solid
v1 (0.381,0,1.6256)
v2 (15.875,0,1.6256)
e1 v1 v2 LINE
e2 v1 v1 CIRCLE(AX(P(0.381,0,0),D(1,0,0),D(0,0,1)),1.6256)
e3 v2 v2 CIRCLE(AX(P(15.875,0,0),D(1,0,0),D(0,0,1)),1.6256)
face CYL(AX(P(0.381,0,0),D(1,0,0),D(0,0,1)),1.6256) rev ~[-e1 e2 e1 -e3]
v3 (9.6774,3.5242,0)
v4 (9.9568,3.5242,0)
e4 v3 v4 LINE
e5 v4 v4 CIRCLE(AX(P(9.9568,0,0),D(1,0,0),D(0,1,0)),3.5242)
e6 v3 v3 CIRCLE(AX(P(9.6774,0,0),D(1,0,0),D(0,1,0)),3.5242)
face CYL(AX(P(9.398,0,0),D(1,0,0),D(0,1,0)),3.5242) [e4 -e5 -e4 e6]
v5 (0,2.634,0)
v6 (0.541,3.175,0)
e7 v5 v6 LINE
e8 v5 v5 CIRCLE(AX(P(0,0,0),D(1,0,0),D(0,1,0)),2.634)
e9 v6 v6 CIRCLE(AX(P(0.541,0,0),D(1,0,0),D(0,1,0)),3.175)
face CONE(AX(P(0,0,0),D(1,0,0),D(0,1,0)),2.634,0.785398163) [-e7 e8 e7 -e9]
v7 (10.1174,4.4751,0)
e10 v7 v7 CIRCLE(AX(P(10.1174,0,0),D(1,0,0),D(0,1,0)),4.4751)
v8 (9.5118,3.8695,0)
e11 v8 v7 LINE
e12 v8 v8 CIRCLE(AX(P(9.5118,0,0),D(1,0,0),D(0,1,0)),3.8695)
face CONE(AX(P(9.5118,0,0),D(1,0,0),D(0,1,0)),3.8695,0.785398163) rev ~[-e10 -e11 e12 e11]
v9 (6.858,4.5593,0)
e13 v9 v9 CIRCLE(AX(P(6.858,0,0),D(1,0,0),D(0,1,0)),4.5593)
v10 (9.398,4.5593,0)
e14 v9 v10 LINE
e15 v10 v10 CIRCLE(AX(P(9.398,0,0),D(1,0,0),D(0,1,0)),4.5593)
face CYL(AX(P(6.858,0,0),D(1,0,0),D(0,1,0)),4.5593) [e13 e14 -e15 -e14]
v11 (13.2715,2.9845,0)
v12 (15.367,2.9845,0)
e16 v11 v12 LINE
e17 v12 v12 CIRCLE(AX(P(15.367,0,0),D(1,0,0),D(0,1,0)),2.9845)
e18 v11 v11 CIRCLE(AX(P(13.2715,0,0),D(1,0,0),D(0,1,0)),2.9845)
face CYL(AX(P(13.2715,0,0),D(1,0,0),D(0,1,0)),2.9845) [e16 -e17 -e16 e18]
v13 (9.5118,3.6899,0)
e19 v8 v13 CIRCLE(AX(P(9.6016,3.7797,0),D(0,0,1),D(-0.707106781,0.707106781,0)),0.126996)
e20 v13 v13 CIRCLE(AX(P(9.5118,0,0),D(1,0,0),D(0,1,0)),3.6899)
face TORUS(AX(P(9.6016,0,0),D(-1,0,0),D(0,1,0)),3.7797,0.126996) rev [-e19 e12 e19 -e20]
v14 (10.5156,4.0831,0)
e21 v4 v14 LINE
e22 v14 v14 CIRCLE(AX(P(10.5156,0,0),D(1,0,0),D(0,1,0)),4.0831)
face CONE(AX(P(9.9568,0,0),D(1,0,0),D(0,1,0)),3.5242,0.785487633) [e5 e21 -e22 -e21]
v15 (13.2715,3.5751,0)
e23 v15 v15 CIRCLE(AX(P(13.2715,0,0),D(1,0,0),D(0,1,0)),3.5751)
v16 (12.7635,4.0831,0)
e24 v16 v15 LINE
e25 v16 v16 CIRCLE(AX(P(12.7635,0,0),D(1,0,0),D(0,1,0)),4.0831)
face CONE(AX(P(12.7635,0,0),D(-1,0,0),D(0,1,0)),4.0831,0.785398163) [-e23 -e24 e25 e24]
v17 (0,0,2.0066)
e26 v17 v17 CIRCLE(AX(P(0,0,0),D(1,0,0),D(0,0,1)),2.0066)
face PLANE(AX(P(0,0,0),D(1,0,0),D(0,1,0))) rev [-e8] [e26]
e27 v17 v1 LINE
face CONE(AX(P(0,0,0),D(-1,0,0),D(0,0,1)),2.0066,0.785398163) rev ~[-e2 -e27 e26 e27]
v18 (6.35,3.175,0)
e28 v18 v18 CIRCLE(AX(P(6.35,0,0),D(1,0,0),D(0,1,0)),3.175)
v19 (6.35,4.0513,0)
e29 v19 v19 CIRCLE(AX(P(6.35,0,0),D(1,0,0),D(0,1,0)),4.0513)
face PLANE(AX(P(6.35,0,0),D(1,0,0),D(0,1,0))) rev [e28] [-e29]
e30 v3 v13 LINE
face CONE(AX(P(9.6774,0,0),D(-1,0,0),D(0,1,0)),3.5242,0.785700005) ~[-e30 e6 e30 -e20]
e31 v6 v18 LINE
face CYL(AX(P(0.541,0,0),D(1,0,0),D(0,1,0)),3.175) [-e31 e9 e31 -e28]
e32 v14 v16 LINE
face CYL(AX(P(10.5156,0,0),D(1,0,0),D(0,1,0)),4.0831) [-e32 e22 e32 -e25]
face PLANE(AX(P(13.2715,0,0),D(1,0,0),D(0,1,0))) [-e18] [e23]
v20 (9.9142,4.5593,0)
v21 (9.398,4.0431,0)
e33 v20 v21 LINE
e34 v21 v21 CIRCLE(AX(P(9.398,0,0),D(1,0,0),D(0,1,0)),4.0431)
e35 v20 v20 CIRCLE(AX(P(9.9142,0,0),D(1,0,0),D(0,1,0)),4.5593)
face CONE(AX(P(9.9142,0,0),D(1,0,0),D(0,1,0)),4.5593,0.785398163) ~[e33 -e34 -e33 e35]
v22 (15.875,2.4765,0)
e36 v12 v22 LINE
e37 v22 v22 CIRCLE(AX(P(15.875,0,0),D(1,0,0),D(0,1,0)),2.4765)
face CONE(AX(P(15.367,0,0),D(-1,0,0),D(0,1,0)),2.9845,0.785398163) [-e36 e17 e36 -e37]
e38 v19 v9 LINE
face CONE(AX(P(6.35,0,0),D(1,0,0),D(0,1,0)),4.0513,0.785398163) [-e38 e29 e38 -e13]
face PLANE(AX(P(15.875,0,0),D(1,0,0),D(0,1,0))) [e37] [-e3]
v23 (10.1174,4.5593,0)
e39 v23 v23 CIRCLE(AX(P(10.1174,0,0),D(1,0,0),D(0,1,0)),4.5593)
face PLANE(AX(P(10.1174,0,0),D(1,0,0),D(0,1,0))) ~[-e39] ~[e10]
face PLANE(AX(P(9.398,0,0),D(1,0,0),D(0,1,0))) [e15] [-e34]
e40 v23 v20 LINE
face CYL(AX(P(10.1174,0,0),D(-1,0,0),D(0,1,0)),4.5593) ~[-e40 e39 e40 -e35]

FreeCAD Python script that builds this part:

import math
import FreeCAD as App
import Part
import Sketcher
Q = App.Units.Quantity


def add_polygon(sketch, points):
    """Adds a closed chain of lines whose ends are joined by coincident constraints."""
    first, n = sketch.GeometryCount, len(points)
    for a, b in zip(points, points[1:] + points[:1]):
        sketch.addGeometry(Part.LineSegment(App.Vector(*a, 0), App.Vector(*b, 0)), False)
    for i in range(n):
        sketch.addConstraint(Sketcher.Constraint("Coincident", first + i, 2, first + (i + 1) % n, 1))

doc = App.newDocument("Part")
body = doc.addObject("PartDesign::Body", "Body")

# Sketch on XY plane
sketch1 = body.newObject("Sketcher::SketchObject", "Sketch")
sketch1.AttachmentSupport = (doc.getObject("XY_Plane"), [""])
sketch1.MapMode = "FlatFace"
add_polygon(sketch1, [(0, 0), (6.35, 0), (6.35, 3.175), (0.541, 3.175), (0, 2.634)])  # lines 0-4
sketch1.addConstraint(Sketcher.Constraint("Horizontal", 0))
sketch1.addConstraint(Sketcher.Constraint("Vertical", 1))
sketch1.addConstraint(Sketcher.Constraint("Horizontal", 2))
sketch1.addConstraint(Sketcher.Constraint("Vertical", 4))
sketch1.addConstraint(Sketcher.Constraint("Coincident", 4, 2, -1, 1))
sketch1.addConstraint(Sketcher.Constraint("Angle", 3, Q("-135 deg")))
sketch1.addConstraint(Sketcher.Constraint("DistanceX", 0, 1, 0, 2, Q("0.25 in")))
sketch1.addConstraint(Sketcher.Constraint("DistanceY", 1, 1, 1, 2, Q("0.125 in")))
sketch1.addConstraint(Sketcher.Constraint("DistanceX", 2, 2, 2, 1, Q("0.2287 in")))
revolution = body.newObject("PartDesign::Revolution", "Revolution")
revolution.Profile = sketch1
revolution.ReferenceAxis = (sketch1, ["H_Axis"])
revolution.Angle = 360

# Sketch on XY plane
sketch2 = body.newObject("Sketcher::SketchObject", "Sketch001")
sketch2.AttachmentSupport = (doc.getObject("XY_Plane"), [""])
sketch2.MapMode = "FlatFace"
add_polygon(sketch2, [(6.35, 0), (13.2715, 0), (13.2715, 3.5751), (12.7635, 4.0831), (10.5156, 4.0831), (9.9568, 3.5242), (9.398, 3.5242), (9.398, 4.5593), (6.858, 4.5593), (6.35, 4.0513)])  # lines 0-9
sketch2.addConstraint(Sketcher.Constraint("Horizontal", 0))
sketch2.addConstraint(Sketcher.Constraint("Vertical", 1))
sketch2.addConstraint(Sketcher.Constraint("Horizontal", 3))
sketch2.addConstraint(Sketcher.Constraint("Horizontal", 5))
sketch2.addConstraint(Sketcher.Constraint("Vertical", 6))
sketch2.addConstraint(Sketcher.Constraint("Horizontal", 7))
sketch2.addConstraint(Sketcher.Constraint("Vertical", 9))
sketch2.addConstraint(Sketcher.Constraint("PointOnObject", 0, 2, -1))
sketch2.addConstraint(Sketcher.Constraint("Perpendicular", 2, 4))
sketch2.addConstraint(Sketcher.Constraint("Parallel", 4, 8))
sketch2.addConstraint(Sketcher.Constraint("Equal", 2, 8))
sketch2.addConstraint(Sketcher.Constraint("DistanceX", 7, 2, 7, 1, Q("0.1 in")))
sketch2.addConstraint(Sketcher.Constraint("Angle", 2, Q("135 deg")))
sketch2.addConstraint(Sketcher.Constraint("DistanceX", 5, 2, 5, 1, Q("0.022 in")))
sketch2.addConstraint(Sketcher.Constraint("DistanceX", -1, 1, 5, 2, Q("0.37 in")))
sketch2.addConstraint(Sketcher.Constraint("DistanceX", -1, 1, 8, 2, Q("0.25 in")))
sketch2.addConstraint(Sketcher.Constraint("DistanceX", 0, 1, 0, 2, Q("0.2725 in")))
sketch2.addConstraint(Sketcher.Constraint("DistanceX", 3, 2, 3, 1, Q("0.0885 in")))
sketch2.addConstraint(Sketcher.Constraint("DistanceY", 9, 2, 9, 1, Q("0.1595 in")))
sketch2.addConstraint(Sketcher.Constraint("DistanceY", 1, 1, 1, 2, 3.575))
revolution2 = body.newObject("PartDesign::Revolution", "Revolution001")
revolution2.Profile = sketch2
revolution2.ReferenceAxis = (sketch2, ["H_Axis"])
revolution2.Angle = 360

# Sketch on XY plane
sketch3 = body.newObject("Sketcher::SketchObject", "Sketch002")
sketch3.AttachmentSupport = (doc.getObject("XY_Plane"), [""])
sketch3.MapMode = "FlatFace"
add_polygon(sketch3, [(13.2715, 0), (15.875, 0), (15.875, 2.4765), (15.367, 2.9845), (13.2715, 2.9845)])  # lines 0-4
sketch3.addConstraint(Sketcher.Constraint("Horizontal", 0))
sketch3.addConstraint(Sketcher.Constraint("Vertical", 1))
sketch3.addConstraint(Sketcher.Constraint("Horizontal", 3))
sketch3.addConstraint(Sketcher.Constraint("Vertical", 4))
sketch3.addConstraint(Sketcher.Constraint("PointOnObject", 0, 2, -1))
sketch3.addConstraint(Sketcher.Constraint("Angle", 2, Q("135 deg")))
sketch3.addConstraint(Sketcher.Constraint("DistanceX", 2, 2, 1, 2, Q("0.02 in")))
sketch3.addConstraint(Sketcher.Constraint("DistanceX", 0, 1, 0, 2, Q("0.1025 in")))
sketch3.addConstraint(Sketcher.Constraint("DistanceY", 1, 1, 1, 2, Q("0.0975 in")))
sketch3.addConstraint(Sketcher.Constraint("DistanceX", -1, 1, 0, 2, Q("0.625 in")))
revolution3 = body.newObject("PartDesign::Revolution", "Revolution002")
revolution3.Profile = sketch3
revolution3.ReferenceAxis = (sketch3, ["H_Axis"])
revolution3.Angle = 360

# Sketch on YZ plane
sketch4 = body.newObject("Sketcher::SketchObject", "Sketch003")
sketch4.AttachmentSupport = (doc.getObject("YZ_Plane"), [""])
sketch4.MapMode = "FlatFace"
sketch4.addGeometry(Part.Circle(App.Vector(0, 0, 0), App.Vector(0, 0, 1), 1.6256), False)
sketch4.addConstraint(Sketcher.Constraint("Coincident", 0, 3, -1, 1))
sketch4.addConstraint(Sketcher.Constraint("Diameter", 0, Q("0.128 in")))
doc.recompute()
hole = body.newObject("PartDesign::Hole", "Hole")
hole.Profile = sketch4
hole.ThreadType = "None"
hole.Diameter = Q("0.128 in")
hole.DepthType = "Dimension"
hole.Depth = Q("0.625 in")
hole.DrillPoint = "Flat"
hole.HoleCutType = "Countersink"
hole.HoleCutDiameter = Q("0.158 in")
hole.HoleCutCountersinkAngle = 90
hole.Reversed = True

# Sketch on XY plane
sketch5 = body.newObject("Sketcher::SketchObject", "Sketch004")
sketch5.AttachmentSupport = (doc.getObject("XY_Plane"), [""])
sketch5.MapMode = "FlatFace"
sketch5.addGeometry(Part.LineSegment(App.Vector(9.9142, 4.5593, 0), App.Vector(9.398, 4.0431, 0)), False)
sketch5.addGeometry(Part.LineSegment(App.Vector(9.398, 4.0431, 0), App.Vector(9.398, 3.2702, 0)), False)
sketch5.addGeometry(Part.LineSegment(App.Vector(9.398, 3.2702, 0), App.Vector(9.9568, 3.2702, 0)), False)
sketch5.addGeometry(Part.LineSegment(App.Vector(9.9568, 3.2702, 0), App.Vector(9.9568, 3.5242, 0)), False)
sketch5.addGeometry(Part.LineSegment(App.Vector(9.9568, 3.5242, 0), App.Vector(9.6774, 3.5242, 0)), False)
sketch5.addGeometry(Part.LineSegment(App.Vector(9.6774, 3.5242, 0), App.Vector(9.5118, 3.6899, 0)), False)
sketch5.addGeometry(Part.ArcOfCircle(Part.Circle(App.Vector(9.6016, 3.7797, 0), App.Vector(0, 0, 1), 0.126996), math.radians(135), math.radians(225)), False)
sketch5.addGeometry(Part.LineSegment(App.Vector(9.5118, 3.8695, 0), App.Vector(10.1174, 4.4751, 0)), False)
sketch5.addGeometry(Part.LineSegment(App.Vector(10.1174, 4.4751, 0), App.Vector(10.1174, 4.5593, 0)), False)
sketch5.addGeometry(Part.LineSegment(App.Vector(10.1174, 4.5593, 0), App.Vector(9.9142, 4.5593, 0)), False)
sketch5.addConstraint(Sketcher.Constraint("Coincident", 0, 2, 1, 1))
sketch5.addConstraint(Sketcher.Constraint("Coincident", 1, 2, 2, 1))
sketch5.addConstraint(Sketcher.Constraint("Coincident", 2, 2, 3, 1))
sketch5.addConstraint(Sketcher.Constraint("Coincident", 3, 2, 4, 1))
sketch5.addConstraint(Sketcher.Constraint("Coincident", 4, 2, 5, 1))
sketch5.addConstraint(Sketcher.Constraint("Tangent", 5, 2, 6, 2))
sketch5.addConstraint(Sketcher.Constraint("Tangent", 6, 1, 7, 1))
sketch5.addConstraint(Sketcher.Constraint("Coincident", 7, 2, 8, 1))
sketch5.addConstraint(Sketcher.Constraint("Coincident", 8, 2, 9, 1))
sketch5.addConstraint(Sketcher.Constraint("Coincident", 9, 2, 0, 1))
sketch5.addConstraint(Sketcher.Constraint("Vertical", 1))
sketch5.addConstraint(Sketcher.Constraint("Horizontal", 2))
sketch5.addConstraint(Sketcher.Constraint("Vertical", 3))
sketch5.addConstraint(Sketcher.Constraint("Horizontal", 4))
sketch5.addConstraint(Sketcher.Constraint("Vertical", 8))
sketch5.addConstraint(Sketcher.Constraint("Horizontal", 9))
sketch5.addConstraint(Sketcher.Constraint("Perpendicular", 0, 5))
sketch5.addConstraint(Sketcher.Constraint("Perpendicular", 5, 7))
sketch5.addConstraint(Sketcher.Constraint("Vertical", 5, 2, 6, 1))
sketch5.addConstraint(Sketcher.Constraint("Radius", 6, Q("0.005 in")))
sketch5.addConstraint(Sketcher.Constraint("DistanceY", 3, 1, 3, 2, Q("0.01 in")))
sketch5.addConstraint(Sketcher.Constraint("DistanceX", 2, 1, 2, 2, Q("0.022 in")))
sketch5.addConstraint(Sketcher.Constraint("DistanceX", 4, 2, 4, 1, Q("0.011 in")))
sketch5.addConstraint(Sketcher.Constraint("DistanceX", 9, 2, 9, 1, Q("0.008 in")))
sketch5.addConstraint(Sketcher.Constraint("DistanceX", -1, 1, 0, 2, Q("0.37 in")))
sketch5.addConstraint(Sketcher.Constraint("DistanceY", 0, 2, 7, 2, Q("0.017 in")))
sketch5.addConstraint(Sketcher.Constraint("DistanceY", 1, 2, 1, 1, 0.773))
sketch5.addConstraint(Sketcher.Constraint("DistanceY", 8, 1, 8, 2, 0.0842))
sketch5.addConstraint(Sketcher.Constraint("DistanceY", -1, 1, 6, 3, Q("0.1488 in")))
revolution4 = body.newObject("PartDesign::Revolution", "Revolution003")
revolution4.Profile = sketch5
revolution4.ReferenceAxis = (sketch5, ["H_Axis"])
revolution4.Angle = 360

doc.recompute()
